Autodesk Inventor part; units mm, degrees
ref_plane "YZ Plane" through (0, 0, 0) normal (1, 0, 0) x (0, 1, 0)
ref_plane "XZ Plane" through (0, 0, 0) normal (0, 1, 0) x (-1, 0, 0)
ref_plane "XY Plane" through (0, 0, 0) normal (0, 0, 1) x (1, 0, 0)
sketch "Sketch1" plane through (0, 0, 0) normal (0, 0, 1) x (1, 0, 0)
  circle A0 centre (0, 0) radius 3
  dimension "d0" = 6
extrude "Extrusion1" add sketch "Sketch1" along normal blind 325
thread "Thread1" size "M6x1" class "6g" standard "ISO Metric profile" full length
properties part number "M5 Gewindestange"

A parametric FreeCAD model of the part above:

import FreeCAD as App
import Part
import Sketcher

doc = App.newDocument("Part")
body = doc.addObject("PartDesign::Body", "Body")

sketch1 = body.newObject("Sketcher::SketchObject", "Sketch")
sketch1.AttachmentSupport = (doc.getObject("XY_Plane"), [""])
sketch1.MapMode = "FlatFace"
sketch1.addGeometry(Part.Circle(App.Vector(0, 0, 0), App.Vector(0, 0, 1), 3), False)
sketch1.addConstraint([
    Sketcher.Constraint("Coincident", 0, 3, -1, 1),
    Sketcher.Constraint("Diameter", 0, 6.0),
])
pad1 = body.newObject("PartDesign::Pad", "Pad")
pad1.Profile = sketch1
pad1.Length = 325

doc.recompute()
